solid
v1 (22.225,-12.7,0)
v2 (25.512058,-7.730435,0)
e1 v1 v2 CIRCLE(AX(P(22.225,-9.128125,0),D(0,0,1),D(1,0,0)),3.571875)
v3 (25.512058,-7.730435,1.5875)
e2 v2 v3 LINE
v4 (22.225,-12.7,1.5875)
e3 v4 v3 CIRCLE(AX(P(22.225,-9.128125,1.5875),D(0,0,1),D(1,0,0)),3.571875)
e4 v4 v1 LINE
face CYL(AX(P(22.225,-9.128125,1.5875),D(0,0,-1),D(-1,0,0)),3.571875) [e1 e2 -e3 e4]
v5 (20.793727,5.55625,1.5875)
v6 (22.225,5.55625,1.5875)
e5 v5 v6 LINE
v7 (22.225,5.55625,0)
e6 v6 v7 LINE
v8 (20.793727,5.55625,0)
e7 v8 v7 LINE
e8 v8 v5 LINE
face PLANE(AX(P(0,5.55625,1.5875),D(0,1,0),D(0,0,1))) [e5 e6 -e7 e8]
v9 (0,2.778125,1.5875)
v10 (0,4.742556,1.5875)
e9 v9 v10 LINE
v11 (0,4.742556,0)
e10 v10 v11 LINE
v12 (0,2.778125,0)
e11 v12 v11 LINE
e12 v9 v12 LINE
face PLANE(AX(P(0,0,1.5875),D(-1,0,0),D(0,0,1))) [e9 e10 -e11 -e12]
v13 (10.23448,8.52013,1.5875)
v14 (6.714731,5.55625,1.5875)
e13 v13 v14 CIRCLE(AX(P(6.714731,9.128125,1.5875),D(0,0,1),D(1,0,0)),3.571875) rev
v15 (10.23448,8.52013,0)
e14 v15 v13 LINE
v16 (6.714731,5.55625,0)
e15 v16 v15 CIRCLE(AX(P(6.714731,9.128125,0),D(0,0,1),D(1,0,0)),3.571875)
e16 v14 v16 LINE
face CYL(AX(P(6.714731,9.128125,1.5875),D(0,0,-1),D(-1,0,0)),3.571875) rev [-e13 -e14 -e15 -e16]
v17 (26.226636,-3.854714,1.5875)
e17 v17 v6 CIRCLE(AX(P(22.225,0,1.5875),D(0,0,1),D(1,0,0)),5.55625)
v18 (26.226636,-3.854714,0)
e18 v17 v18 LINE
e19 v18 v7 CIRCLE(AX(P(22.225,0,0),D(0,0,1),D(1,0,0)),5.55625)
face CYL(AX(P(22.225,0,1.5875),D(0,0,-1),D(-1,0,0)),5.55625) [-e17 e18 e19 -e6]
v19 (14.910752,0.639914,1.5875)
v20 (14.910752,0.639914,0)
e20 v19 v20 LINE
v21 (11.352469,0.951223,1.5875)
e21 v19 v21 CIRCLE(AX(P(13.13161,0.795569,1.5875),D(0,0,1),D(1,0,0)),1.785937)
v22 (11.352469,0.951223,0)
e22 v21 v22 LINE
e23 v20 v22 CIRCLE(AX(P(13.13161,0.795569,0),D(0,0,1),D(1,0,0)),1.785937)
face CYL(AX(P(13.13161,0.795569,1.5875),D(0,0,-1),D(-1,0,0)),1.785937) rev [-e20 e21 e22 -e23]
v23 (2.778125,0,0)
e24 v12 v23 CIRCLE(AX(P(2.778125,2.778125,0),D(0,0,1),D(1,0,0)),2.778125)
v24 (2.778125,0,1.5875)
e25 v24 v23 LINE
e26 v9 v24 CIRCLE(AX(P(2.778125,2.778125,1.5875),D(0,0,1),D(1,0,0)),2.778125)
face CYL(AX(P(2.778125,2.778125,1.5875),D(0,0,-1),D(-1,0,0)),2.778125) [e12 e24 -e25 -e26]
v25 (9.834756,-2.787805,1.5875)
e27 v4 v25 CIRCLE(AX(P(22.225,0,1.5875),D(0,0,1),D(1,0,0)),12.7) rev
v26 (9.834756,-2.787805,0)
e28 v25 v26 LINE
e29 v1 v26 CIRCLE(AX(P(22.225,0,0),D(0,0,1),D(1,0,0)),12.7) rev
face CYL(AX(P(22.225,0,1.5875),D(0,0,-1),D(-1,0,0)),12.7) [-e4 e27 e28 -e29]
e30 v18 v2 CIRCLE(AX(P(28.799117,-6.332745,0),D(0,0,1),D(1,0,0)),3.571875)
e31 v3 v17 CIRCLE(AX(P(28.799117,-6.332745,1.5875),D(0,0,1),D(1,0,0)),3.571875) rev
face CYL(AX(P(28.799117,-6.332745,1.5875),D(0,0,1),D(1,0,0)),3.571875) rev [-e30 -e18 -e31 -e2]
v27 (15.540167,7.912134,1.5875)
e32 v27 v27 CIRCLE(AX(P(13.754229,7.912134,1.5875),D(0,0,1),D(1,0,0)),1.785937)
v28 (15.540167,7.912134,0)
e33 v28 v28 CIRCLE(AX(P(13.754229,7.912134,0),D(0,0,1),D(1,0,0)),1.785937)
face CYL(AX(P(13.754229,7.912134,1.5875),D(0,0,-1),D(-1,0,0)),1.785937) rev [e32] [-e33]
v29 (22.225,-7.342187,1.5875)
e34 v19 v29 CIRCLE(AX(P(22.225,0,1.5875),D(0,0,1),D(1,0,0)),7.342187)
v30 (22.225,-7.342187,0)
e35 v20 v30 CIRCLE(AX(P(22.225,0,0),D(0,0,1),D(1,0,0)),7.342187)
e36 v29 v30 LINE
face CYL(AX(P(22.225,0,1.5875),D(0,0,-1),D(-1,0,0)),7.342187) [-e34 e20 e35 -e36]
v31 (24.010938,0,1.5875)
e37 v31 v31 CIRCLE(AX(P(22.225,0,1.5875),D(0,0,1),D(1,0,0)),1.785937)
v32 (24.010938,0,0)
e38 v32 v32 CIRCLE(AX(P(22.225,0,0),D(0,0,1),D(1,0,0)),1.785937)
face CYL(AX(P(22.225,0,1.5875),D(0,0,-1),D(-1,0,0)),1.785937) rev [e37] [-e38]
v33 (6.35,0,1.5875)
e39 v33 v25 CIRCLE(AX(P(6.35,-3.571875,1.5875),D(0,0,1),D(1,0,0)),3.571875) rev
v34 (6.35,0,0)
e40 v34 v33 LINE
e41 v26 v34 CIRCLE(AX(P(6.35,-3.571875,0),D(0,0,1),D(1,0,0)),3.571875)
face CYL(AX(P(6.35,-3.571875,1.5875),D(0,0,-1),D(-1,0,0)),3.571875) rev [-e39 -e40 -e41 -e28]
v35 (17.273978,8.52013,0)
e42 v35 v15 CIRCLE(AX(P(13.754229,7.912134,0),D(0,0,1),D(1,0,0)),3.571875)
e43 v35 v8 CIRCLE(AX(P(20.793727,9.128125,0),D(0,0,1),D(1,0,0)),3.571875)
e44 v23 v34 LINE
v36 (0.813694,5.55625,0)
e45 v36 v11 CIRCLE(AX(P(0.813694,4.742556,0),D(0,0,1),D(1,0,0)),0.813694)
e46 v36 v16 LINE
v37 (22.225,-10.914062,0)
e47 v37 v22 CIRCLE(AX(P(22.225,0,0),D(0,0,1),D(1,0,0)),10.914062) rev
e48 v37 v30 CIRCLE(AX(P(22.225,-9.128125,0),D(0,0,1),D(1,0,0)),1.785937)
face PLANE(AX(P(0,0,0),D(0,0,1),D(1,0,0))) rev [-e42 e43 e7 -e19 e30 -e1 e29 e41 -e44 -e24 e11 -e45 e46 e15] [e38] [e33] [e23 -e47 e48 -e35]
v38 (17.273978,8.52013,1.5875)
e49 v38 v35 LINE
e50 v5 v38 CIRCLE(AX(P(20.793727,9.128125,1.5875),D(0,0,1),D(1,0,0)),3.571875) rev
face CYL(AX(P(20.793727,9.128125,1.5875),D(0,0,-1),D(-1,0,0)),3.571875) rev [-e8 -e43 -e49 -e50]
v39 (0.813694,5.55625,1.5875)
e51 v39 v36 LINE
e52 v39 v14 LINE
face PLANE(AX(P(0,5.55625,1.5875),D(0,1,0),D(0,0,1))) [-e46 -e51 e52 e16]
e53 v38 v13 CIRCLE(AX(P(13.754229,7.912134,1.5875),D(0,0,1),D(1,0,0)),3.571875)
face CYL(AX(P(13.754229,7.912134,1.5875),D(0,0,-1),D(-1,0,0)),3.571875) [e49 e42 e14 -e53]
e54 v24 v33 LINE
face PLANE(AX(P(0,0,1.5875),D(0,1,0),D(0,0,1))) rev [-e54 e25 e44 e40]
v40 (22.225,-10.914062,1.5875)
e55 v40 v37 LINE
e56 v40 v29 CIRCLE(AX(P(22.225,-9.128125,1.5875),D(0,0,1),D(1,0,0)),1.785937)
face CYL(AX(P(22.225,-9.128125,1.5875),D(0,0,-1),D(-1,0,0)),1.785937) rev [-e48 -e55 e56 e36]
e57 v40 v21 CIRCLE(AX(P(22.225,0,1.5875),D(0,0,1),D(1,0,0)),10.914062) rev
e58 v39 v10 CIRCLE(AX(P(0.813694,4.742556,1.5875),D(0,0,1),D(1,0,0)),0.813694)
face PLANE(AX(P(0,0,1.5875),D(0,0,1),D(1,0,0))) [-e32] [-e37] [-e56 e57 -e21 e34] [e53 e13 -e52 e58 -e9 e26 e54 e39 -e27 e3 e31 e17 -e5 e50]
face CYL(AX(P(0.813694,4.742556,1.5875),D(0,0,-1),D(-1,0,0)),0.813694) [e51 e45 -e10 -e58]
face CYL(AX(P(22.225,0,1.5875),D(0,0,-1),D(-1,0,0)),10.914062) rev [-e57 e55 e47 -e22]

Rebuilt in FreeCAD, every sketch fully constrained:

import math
import FreeCAD as App
import Part
import Sketcher
from FreeCAD import Vector
Q = App.Units.Quantity


def edges_at(feature, points):
    """Names of the edges that pass closest to the given points."""
    edges = feature.Shape.Edges
    near = lambda p: min(range(len(edges)), key=lambda i: edges[i].distToShape(Part.Vertex(*p))[0])
    return sorted({f"Edge{near(p) + 1}" for p in points})

doc = App.newDocument("Part")
body = doc.addObject("PartDesign::Body", "Body")

# Sketch on XY plane
sketch1 = body.newObject("Sketcher::SketchObject", "Sketch")
sketch1.AttachmentSupport = (doc.getObject("XY_Plane"), [""])
sketch1.MapMode = "FlatFace"
sketch1.addGeometry([
    Part.ArcOfCircle(Part.Circle(Vector(22.2, -9.1, 0), Vector(0, 0, 1), 3.6), math.radians(-90), math.radians(90)),  # 0
    Part.ArcOfCircle(Part.Circle(Vector(22.2, 0, 0), Vector(0, 0, 1), 5.6), math.radians(-90), math.radians(90)),  # 1
    Part.LineSegment(Vector(22.2, 5.6, 0), Vector(16.4, 5.6, 0)),  # 2
    Part.ArcOfCircle(Part.Circle(Vector(13.8, 7.9, 0), Vector(0, 0, 1), 3.6), math.radians(-41), math.radians(221)),  # 3
    Part.LineSegment(Vector(11.1, 5.6, 0), Vector(0.8, 5.6, 0)),  # 4
    Part.ArcOfCircle(Part.Circle(Vector(0.8, 4.7, 0), Vector(0, 0, 1), 0.8), math.radians(90), math.radians(180)),  # 5
    Part.LineSegment(Vector(0, 4.7, 0), Vector(0, 2.8, 0)),  # 6
    Part.ArcOfCircle(Part.Circle(Vector(2.8, 2.8, 0), Vector(0, 0, 1), 2.8), math.radians(-180), math.radians(-90)),  # 7
    Part.LineSegment(Vector(2.8, 0, 0), Vector(9.5, 0, 0)),  # 8
    Part.ArcOfCircle(Part.Circle(Vector(22.2, 0, 0), Vector(0, 0, 1), 12.7), math.radians(180), math.radians(270)),  # 9
    Part.ArcOfCircle(Part.Circle(Vector(13.1, 0.8, 0), Vector(0, 0, 1), 1.8), math.radians(-5), math.radians(175)),  # 10
    Part.ArcOfCircle(Part.Circle(Vector(22.2, 0, 0), Vector(0, 0, 1), 7.3), math.radians(175), math.radians(270)),  # 11
    Part.ArcOfCircle(Part.Circle(Vector(22.2, -9.1, 0), Vector(0, 0, 1), 1.8), math.radians(-90), math.radians(90)),  # 12
    Part.ArcOfCircle(Part.Circle(Vector(22.2, 0, 0), Vector(0, 0, 1), 10.9), math.radians(175), math.radians(270)),  # 13
    Part.Circle(Vector(13.8, 7.9, 0), Vector(0, 0, 1), 1.8),  # 14
    Part.Circle(Vector(22.2, 0, 0), Vector(0, 0, 1), 1.8),  # 15
], False)
sketch1.addConstraint([
    Sketcher.Constraint("Tangent", 0, 2, 1, 1),
    Sketcher.Constraint("Tangent", 1, 2, 2, 1),
    Sketcher.Constraint("Coincident", 2, 2, 3, 1),
    Sketcher.Constraint("Coincident", 3, 2, 4, 1),
    Sketcher.Constraint("Tangent", 4, 2, 5, 1),
    Sketcher.Constraint("Tangent", 5, 2, 6, 1),
    Sketcher.Constraint("Tangent", 6, 2, 7, 1),
    Sketcher.Constraint("Tangent", 7, 2, 8, 1),
    Sketcher.Constraint("Coincident", 8, 2, 9, 1),
    Sketcher.Constraint("Tangent", 9, 2, 0, 1),
    Sketcher.Constraint("Tangent", 10, 1, 11, 1),
    Sketcher.Constraint("Tangent", 11, 2, 12, 2),
    Sketcher.Constraint("Tangent", 12, 1, 13, 2),
    Sketcher.Constraint("Tangent", 13, 1, 10, 2),
    Sketcher.Constraint("Horizontal", 2),
    Sketcher.Constraint("Horizontal", 4),
    Sketcher.Constraint("Vertical", 6),
    Sketcher.Constraint("Horizontal", 8),
    Sketcher.Constraint("Coincident", 9, 3, 1, 3),
    Sketcher.Constraint("Coincident", 11, 3, 1, 3),
    Sketcher.Constraint("Coincident", 12, 3, 0, 3),
    Sketcher.Constraint("Coincident", 13, 3, 1, 3),
    Sketcher.Constraint("Coincident", 14, 3, 3, 3),
    Sketcher.Constraint("Coincident", 15, 3, 1, 3),
    Sketcher.Constraint("Equal", 0, 3),
    Sketcher.Constraint("Equal", 12, 14),
    Sketcher.Constraint("Equal", 14, 15),
    Sketcher.Constraint("Symmetric", 0, 2, 1, 2, -1),
    Sketcher.Constraint("PointOnObject", 5, 2, -2),
    Sketcher.Constraint("PointOnObject", 7, 2, -1),
    Sketcher.Constraint("Horizontal", 2, 2, 3, 2),
    Sketcher.Constraint("Radius", 9, Q("0.5 in")),
    Sketcher.Constraint("Diameter", 14, Q("0.140625 in")),
    Sketcher.Constraint("Radius", 0, Q("0.140625 in")),
    Sketcher.Constraint("Radius", 7, Q("0.109375 in")),
    Sketcher.Constraint("DistanceX", 8, 1, 8, 2, Q("0.265625 in")),
    Sketcher.Constraint("Radius", 5, 0.813694),
    Sketcher.Constraint("DistanceX", 2, 2, 2, 1, 5.78598),
    Sketcher.Constraint("DistanceX", 4, 2, 4, 1, 10.255745),
    Sketcher.Constraint("DistanceX", -1, 1, 10, 3, 13.13161),
])
pad1 = body.newObject("PartDesign::Pad", "Pad")
pad1.Profile = sketch1
pad1.Length = Q("0.0625 in")
doc.recompute()

fillet = body.newObject("PartDesign::Fillet", "Fillet")
fillet.Base = (pad1, edges_at(pad1, [
    (11.069, 5.556, 0.794),
    (16.439, 5.556, 0.794),
    (22.225, -5.556, 0.794),
    (9.525, 0, 0.794),
]))
fillet.Radius = Q("0.140625 in")

doc.recompute()
